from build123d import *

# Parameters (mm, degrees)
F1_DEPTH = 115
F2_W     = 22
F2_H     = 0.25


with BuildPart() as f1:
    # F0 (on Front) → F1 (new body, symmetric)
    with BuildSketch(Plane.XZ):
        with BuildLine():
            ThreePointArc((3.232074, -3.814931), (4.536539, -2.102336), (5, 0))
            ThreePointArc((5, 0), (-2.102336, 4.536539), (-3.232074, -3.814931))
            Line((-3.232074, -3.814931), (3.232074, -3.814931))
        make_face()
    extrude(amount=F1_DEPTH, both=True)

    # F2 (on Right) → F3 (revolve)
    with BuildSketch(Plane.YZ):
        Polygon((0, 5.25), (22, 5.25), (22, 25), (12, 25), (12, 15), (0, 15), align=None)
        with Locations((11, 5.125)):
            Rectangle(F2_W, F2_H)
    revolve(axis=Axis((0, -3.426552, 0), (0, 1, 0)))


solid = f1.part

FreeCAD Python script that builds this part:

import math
import FreeCAD as App
import Part
import Sketcher

doc = App.newDocument("Part")
body = doc.addObject("PartDesign::Body", "Body")

sketch1 = body.newObject("Sketcher::SketchObject", "Sketch")
sketch1.AttachmentSupport = (doc.getObject("XZ_Plane"), [""])
sketch1.MapMode = "FlatFace"
sketch1.addGeometry([
    Part.ArcOfCircle(Part.Circle(App.Vector(0.000002, -0.000001, 0), App.Vector(0, 0, 1), 4.999998), math.radians(-49.728176), math.radians(0.000013)),
    Part.ArcOfCircle(Part.Circle(App.Vector(0, 0, 0), App.Vector(0, 0, 1), 5), math.radians(-0.000001), math.radians(229.728167)),
    Part.LineSegment(App.Vector(-3.232074, -3.814931, 0), App.Vector(3.232074, -3.814931, 0)),
], False)
sketch1.addConstraint([
    Sketcher.Constraint("Tangent", 0, 2, 1, 1),
    Sketcher.Constraint("Coincident", 1, 2, 2, 1),
    Sketcher.Constraint("Coincident", 2, 2, 0, 1),
    Sketcher.Constraint("Horizontal", 2),
    Sketcher.Constraint("Coincident", 0, 3, -1, 1),
    Sketcher.Constraint("PointOnObject", 0, 2, -1),
    Sketcher.Constraint("Radius", 1, 5.0),
    Sketcher.Constraint("DistanceX", -1, 1, 0, 2, 5.0),
    Sketcher.Constraint("DistanceX", 2, 1, 2, 2, 6.464148),
])
pad1 = body.newObject("PartDesign::Pad", "Pad")
pad1.Profile = sketch1
pad1.Length = 230
pad1.Midplane = True

sketch2 = body.newObject("Sketcher::SketchObject", "Sketch001")
sketch2.AttachmentSupport = (doc.getObject("YZ_Plane"), [""])
sketch2.MapMode = "FlatFace"
sketch2.addGeometry([
    Part.LineSegment(App.Vector(22, 25, 0), App.Vector(12, 25, 0)),
    Part.LineSegment(App.Vector(12, 25, 0), App.Vector(12, 15, 0)),
    Part.LineSegment(App.Vector(12, 15, 0), App.Vector(0, 15, 0)),
    Part.LineSegment(App.Vector(0, 15, 0), App.Vector(0, 5, 0)),
    Part.LineSegment(App.Vector(0, 5, 0), App.Vector(22, 5, 0)),
    Part.LineSegment(App.Vector(22, 5, 0), App.Vector(22, 25, 0)),
], False)
sketch2.addConstraint([
    Sketcher.Constraint("Coincident", 0, 2, 1, 1),
    Sketcher.Constraint("Coincident", 1, 2, 2, 1),
    Sketcher.Constraint("Coincident", 2, 2, 3, 1),
    Sketcher.Constraint("Coincident", 3, 2, 4, 1),
    Sketcher.Constraint("Coincident", 4, 2, 5, 1),
    Sketcher.Constraint("Coincident", 5, 2, 0, 1),
    Sketcher.Constraint("Horizontal", 0),
    Sketcher.Constraint("Vertical", 1),
    Sketcher.Constraint("Horizontal", 2),
    Sketcher.Constraint("Vertical", 3),
    Sketcher.Constraint("Horizontal", 4),
    Sketcher.Constraint("Vertical", 5),
    Sketcher.Constraint("PointOnObject", 2, 2, -2),
    Sketcher.Constraint("Equal", 0, 1),
    Sketcher.Constraint("Equal", 1, 3),
    Sketcher.Constraint("DistanceX", 0, 2, 0, 1, 10.0),
    Sketcher.Constraint("DistanceX", 2, 2, 2, 1, 12.0),
    Sketcher.Constraint("DistanceY", -1, 1, 0, 2, 25.0),
])
revolution = body.newObject("PartDesign::Revolution", "Revolution")
revolution.Profile = sketch2
revolution.ReferenceAxis = (sketch2, ["H_Axis"])
revolution.Angle = 360

doc.recompute()
